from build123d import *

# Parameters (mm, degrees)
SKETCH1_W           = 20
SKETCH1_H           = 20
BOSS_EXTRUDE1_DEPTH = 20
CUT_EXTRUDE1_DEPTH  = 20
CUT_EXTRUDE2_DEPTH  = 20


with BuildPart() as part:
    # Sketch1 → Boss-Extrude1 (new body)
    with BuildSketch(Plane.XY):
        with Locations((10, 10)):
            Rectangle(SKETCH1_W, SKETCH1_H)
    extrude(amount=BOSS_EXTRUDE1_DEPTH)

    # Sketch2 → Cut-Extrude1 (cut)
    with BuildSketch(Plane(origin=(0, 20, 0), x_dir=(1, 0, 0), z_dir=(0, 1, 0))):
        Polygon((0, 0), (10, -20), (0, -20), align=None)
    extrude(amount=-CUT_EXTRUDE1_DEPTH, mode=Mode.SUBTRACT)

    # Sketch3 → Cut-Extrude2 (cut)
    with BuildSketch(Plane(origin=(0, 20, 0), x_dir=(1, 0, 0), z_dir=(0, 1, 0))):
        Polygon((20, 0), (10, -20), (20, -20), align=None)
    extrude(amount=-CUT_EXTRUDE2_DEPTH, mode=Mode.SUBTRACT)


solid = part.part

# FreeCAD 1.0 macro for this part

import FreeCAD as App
import Part
import Sketcher
from FreeCAD import Vector
Q = App.Units.Quantity

doc = App.newDocument("Part")
body = doc.addObject("PartDesign::Body", "Body")

# Sketch on XY plane
sketch1 = body.newObject("Sketcher::SketchObject", "Sketch")
sketch1.AttachmentSupport = (doc.getObject("XY_Plane"), [""])
sketch1.MapMode = "FlatFace"
sketch1.addGeometry(Part.LineSegment(Vector(0, 20, 0), Vector(0, 0, 0)), False)
sketch1.addGeometry(Part.LineSegment(Vector(0, 0, 0), Vector(20, 0, 0)), False)
sketch1.addGeometry(Part.LineSegment(Vector(20, 0, 0), Vector(20, 20, 0)), False)
sketch1.addGeometry(Part.LineSegment(Vector(20, 20, 0), Vector(0, 20, 0)), False)
sketch1.addConstraint(Sketcher.Constraint("Coincident", 0, 2, 1, 1))
sketch1.addConstraint(Sketcher.Constraint("Coincident", 1, 2, 2, 1))
sketch1.addConstraint(Sketcher.Constraint("Coincident", 2, 2, 3, 1))
sketch1.addConstraint(Sketcher.Constraint("Coincident", 3, 2, 0, 1))
sketch1.addConstraint(Sketcher.Constraint("Vertical", 0))
sketch1.addConstraint(Sketcher.Constraint("Horizontal", 1))
sketch1.addConstraint(Sketcher.Constraint("Vertical", 2))
sketch1.addConstraint(Sketcher.Constraint("Horizontal", 3))
sketch1.addConstraint(Sketcher.Constraint("Coincident", 0, 2, -1, 1))
sketch1.addConstraint(Sketcher.Constraint("Equal", 3, 0))
sketch1.addConstraint(Sketcher.Constraint("DistanceX", 1, 1, 1, 2, Q("20 mm")))
pad1 = body.newObject("PartDesign::Pad", "Pad")
pad1.Profile = sketch1
pad1.Length = 20

# Sketch on XZ plane
sketch2 = body.newObject("Sketcher::SketchObject", "Sketch001")
sketch2.AttachmentSupport = (doc.getObject("XZ_Plane"), [""])
sketch2.MapMode = "FlatFace"
sketch2.AttachmentOffset = App.Placement(Vector(0, 0, -20), App.Rotation())
sketch2.addGeometry(Part.LineSegment(Vector(10, 20, 0), Vector(0, 0, 0)), False)
sketch2.addGeometry(Part.LineSegment(Vector(0, 0, 0), Vector(0, 20, 0)), False)
sketch2.addGeometry(Part.LineSegment(Vector(0, 20, 0), Vector(10, 20, 0)), False)
sketch2.addConstraint(Sketcher.Constraint("Coincident", 0, 2, 1, 1))
sketch2.addConstraint(Sketcher.Constraint("Coincident", 1, 2, 2, 1))
sketch2.addConstraint(Sketcher.Constraint("Coincident", 2, 2, 0, 1))
sketch2.addConstraint(Sketcher.Constraint("Vertical", 1))
sketch2.addConstraint(Sketcher.Constraint("Horizontal", 2))
sketch2.addConstraint(Sketcher.Constraint("Coincident", 0, 2, -1, 1))
sketch2.addConstraint(Sketcher.Constraint("DistanceX", 2, 1, 2, 2, Q("10 mm")))
sketch2.addConstraint(Sketcher.Constraint("DistanceY", 1, 1, 1, 2, Q("20 mm")))
pocket1 = body.newObject("PartDesign::Pocket", "Pocket")
pocket1.Profile = sketch2
pocket1.Length = 20
pocket1.Reversed = True

# Sketch on XZ plane
sketch3 = body.newObject("Sketcher::SketchObject", "Sketch002")
sketch3.AttachmentSupport = (doc.getObject("XZ_Plane"), [""])
sketch3.MapMode = "FlatFace"
sketch3.AttachmentOffset = App.Placement(Vector(0, 0, -20), App.Rotation())
sketch3.addGeometry(Part.LineSegment(Vector(20, 0, 0), Vector(10, 20, 0)), False)
sketch3.addGeometry(Part.LineSegment(Vector(10, 20, 0), Vector(20, 20, 0)), False)
sketch3.addGeometry(Part.LineSegment(Vector(20, 20, 0), Vector(20, 0, 0)), False)
sketch3.addConstraint(Sketcher.Constraint("Coincident", 0, 2, 1, 1))
sketch3.addConstraint(Sketcher.Constraint("Coincident", 1, 2, 2, 1))
sketch3.addConstraint(Sketcher.Constraint("Coincident", 2, 2, 0, 1))
sketch3.addConstraint(Sketcher.Constraint("Horizontal", 1))
sketch3.addConstraint(Sketcher.Constraint("Vertical", 2))
sketch3.addConstraint(Sketcher.Constraint("PointOnObject", 2, 2, -1))
sketch3.addConstraint(Sketcher.Constraint("DistanceX", 1, 1, 1, 2, Q("10 mm")))
sketch3.addConstraint(Sketcher.Constraint("DistanceY", 2, 2, 2, 1, Q("20 mm")))
sketch3.addConstraint(Sketcher.Constraint("DistanceX", -1, 1, 0, 2, Q("10 mm")))
pocket2 = body.newObject("PartDesign::Pocket", "Pocket001")
pocket2.Profile = sketch3
pocket2.Length = 20
pocket2.Reversed = True

doc.recompute()
